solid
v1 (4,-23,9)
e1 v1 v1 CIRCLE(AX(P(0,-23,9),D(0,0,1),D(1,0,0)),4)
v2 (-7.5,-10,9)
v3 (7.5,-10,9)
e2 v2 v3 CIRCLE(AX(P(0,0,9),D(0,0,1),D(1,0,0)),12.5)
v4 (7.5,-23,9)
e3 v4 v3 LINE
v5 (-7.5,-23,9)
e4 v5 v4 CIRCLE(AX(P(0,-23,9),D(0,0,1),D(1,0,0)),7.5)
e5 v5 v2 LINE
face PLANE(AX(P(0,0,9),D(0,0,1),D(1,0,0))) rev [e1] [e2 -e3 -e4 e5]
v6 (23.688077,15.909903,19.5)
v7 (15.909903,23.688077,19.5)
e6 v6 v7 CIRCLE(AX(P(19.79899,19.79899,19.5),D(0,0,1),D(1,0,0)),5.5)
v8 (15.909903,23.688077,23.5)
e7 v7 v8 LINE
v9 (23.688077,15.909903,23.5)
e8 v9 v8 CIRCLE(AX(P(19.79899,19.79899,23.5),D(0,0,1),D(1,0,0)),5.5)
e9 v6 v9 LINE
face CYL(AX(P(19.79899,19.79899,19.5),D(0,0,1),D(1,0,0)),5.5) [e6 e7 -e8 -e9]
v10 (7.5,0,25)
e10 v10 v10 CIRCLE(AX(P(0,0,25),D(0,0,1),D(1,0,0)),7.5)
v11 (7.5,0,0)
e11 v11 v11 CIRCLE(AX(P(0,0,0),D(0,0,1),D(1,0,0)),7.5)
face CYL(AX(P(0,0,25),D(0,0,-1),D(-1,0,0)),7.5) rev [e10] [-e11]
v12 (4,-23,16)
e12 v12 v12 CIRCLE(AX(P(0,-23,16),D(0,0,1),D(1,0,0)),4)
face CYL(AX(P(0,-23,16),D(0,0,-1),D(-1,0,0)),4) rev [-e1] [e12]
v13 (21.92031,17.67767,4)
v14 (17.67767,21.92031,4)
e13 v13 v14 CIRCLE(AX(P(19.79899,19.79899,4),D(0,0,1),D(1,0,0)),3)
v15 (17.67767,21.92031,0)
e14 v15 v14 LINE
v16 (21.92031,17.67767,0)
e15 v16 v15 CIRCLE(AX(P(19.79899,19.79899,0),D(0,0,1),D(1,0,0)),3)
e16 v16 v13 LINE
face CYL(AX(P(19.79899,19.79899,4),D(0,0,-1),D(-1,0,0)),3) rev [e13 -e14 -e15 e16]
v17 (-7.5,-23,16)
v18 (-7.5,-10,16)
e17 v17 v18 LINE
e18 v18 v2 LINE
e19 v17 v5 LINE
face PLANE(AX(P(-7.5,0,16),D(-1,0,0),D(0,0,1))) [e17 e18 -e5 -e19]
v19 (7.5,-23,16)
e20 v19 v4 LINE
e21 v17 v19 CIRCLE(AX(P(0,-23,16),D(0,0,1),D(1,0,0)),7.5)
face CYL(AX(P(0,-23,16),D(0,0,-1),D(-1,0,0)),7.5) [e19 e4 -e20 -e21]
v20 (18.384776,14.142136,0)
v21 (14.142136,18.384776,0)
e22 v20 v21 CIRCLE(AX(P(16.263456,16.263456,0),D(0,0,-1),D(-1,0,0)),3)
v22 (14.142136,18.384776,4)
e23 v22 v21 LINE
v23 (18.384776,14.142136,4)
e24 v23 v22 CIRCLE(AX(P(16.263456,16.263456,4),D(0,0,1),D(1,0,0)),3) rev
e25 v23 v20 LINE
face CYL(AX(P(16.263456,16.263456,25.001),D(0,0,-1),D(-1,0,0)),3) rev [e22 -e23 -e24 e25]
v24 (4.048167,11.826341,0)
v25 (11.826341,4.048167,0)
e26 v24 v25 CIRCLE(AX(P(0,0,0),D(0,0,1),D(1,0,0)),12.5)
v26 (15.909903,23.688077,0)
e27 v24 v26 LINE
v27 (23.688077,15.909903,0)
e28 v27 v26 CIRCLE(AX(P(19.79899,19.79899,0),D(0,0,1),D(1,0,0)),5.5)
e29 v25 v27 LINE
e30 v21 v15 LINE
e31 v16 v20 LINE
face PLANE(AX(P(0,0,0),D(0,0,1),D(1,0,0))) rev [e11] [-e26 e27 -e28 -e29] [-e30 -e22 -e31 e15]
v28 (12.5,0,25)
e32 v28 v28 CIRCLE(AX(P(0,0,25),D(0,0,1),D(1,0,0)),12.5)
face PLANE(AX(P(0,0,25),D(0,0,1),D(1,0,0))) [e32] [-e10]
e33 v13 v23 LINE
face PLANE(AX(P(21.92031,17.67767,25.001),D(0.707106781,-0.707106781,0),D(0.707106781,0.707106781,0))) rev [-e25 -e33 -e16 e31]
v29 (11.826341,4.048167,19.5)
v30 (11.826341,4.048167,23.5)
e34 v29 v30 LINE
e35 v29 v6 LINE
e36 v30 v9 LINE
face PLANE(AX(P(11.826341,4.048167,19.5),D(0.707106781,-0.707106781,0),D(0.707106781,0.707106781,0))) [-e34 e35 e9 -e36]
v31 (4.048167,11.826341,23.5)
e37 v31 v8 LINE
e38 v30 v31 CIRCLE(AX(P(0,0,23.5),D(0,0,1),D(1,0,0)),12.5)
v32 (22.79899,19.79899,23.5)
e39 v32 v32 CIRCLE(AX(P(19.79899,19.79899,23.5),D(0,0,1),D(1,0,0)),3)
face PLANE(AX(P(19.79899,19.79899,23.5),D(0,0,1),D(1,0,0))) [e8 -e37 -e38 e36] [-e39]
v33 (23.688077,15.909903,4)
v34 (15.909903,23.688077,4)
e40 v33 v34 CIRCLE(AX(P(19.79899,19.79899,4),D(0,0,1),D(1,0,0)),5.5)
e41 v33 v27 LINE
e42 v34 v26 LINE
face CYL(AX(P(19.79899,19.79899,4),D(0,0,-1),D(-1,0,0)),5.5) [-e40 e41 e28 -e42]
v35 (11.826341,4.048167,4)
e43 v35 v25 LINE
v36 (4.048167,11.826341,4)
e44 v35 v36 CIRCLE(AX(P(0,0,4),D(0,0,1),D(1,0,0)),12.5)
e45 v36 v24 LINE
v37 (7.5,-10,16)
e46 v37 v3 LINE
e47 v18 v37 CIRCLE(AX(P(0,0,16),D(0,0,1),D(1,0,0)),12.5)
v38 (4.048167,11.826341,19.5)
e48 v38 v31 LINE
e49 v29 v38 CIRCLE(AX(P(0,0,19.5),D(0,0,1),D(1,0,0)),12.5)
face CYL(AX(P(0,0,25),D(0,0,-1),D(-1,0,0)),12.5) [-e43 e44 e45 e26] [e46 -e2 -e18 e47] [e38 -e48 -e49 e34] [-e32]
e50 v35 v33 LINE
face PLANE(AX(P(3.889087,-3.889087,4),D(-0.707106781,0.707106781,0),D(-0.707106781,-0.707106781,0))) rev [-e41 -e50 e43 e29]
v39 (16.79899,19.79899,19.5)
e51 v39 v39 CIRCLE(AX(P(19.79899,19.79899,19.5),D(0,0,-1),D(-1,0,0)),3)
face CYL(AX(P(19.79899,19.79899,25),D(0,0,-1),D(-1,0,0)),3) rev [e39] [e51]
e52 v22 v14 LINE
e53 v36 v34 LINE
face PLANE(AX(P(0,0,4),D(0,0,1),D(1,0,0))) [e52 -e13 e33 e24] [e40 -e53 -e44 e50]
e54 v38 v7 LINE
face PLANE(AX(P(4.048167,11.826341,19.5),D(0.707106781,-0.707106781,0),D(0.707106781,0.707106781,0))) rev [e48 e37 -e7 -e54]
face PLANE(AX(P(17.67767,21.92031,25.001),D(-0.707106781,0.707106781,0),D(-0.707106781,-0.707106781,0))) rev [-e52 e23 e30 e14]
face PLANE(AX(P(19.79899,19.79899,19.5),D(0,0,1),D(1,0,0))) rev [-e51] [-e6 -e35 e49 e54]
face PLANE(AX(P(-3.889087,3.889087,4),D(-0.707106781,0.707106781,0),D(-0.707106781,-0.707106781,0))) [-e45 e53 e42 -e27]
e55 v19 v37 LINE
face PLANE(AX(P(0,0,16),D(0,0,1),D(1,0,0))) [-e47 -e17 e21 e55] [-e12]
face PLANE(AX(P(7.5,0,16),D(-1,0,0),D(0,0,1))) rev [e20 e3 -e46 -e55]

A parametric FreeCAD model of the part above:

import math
import FreeCAD as App
import Part
import Sketcher
Q = App.Units.Quantity

doc = App.newDocument("Part")
body = doc.addObject("PartDesign::Body", "Body")

# Sketch on XY plane
sketch1 = body.newObject("Sketcher::SketchObject", "Sketch")
sketch1.AttachmentSupport = (doc.getObject("XY_Plane"), [""])
sketch1.MapMode = "FlatFace"
sketch1.addGeometry([
    Part.ArcOfCircle(Part.Circle(App.Vector(0, 0, 0), App.Vector(0, 0, 1), 12.5), math.radians(71.103881), math.radians(360)),  # 0
    Part.ArcOfCircle(Part.Circle(App.Vector(0, 0, 0), App.Vector(0, 0, 1), 12.5), math.radians(0), math.radians(18.896119)),  # 1
    Part.ArcOfCircle(Part.Circle(App.Vector(0, 0, 0), App.Vector(0, 0, 1), 12.5), math.radians(18.896119), math.radians(71.103881)),  # 2
    Part.ArcOfCircle(Part.Circle(App.Vector(0, 0, 0), App.Vector(0, 0, 1), 7.5), math.radians(92.166572), math.radians(357.833428)),  # 3
    Part.ArcOfCircle(Part.Circle(App.Vector(0, 0, 0), App.Vector(0, 0, 1), 7.5), math.radians(0), math.radians(92.166572)),  # 4
    Part.ArcOfCircle(Part.Circle(App.Vector(-0.000001, 0, 0), App.Vector(0, 0, 1), 7.500001), math.radians(-2.166572), math.radians(0)),  # 5
], False)
sketch1.addConstraint([
    Sketcher.Constraint("Tangent", 0, 2, 1, 1),
    Sketcher.Constraint("Tangent", 1, 2, 2, 1),
    Sketcher.Constraint("Tangent", 2, 2, 0, 1),
    Sketcher.Constraint("Tangent", 3, 1, 4, 2),
    Sketcher.Constraint("Tangent", 4, 1, 5, 2),
    Sketcher.Constraint("Tangent", 5, 1, 3, 2),
    Sketcher.Constraint("Coincident", 0, 3, -1, 1),
    Sketcher.Constraint("Coincident", 3, 3, -1, 1),
    Sketcher.Constraint("PointOnObject", 0, 2, -1),
    Sketcher.Constraint("PointOnObject", 4, 1, -1),
    Sketcher.Constraint("Radius", 0, Q("12.5 mm")),
    Sketcher.Constraint("Radius", 3, Q("7.5 mm")),
    Sketcher.Constraint("DistanceX", -1, 1, 1, 2, Q("11.826341 mm")),
    Sketcher.Constraint("DistanceY", -1, 1, 2, 2, Q("11.826341 mm")),
    Sketcher.Constraint("DistanceY", -1, 1, 3, 1, Q("7.494639 mm")),
    Sketcher.Constraint("DistanceX", -1, 1, 5, 1, Q("7.494639 mm")),
])
pad1 = body.newObject("PartDesign::Pad", "Pad")
pad1.Profile = sketch1
pad1.Length = 25

# Sketch on XY plane
sketch2 = body.newObject("Sketcher::SketchObject", "Sketch001")
sketch2.AttachmentSupport = (doc.getObject("XY_Plane"), [""])
sketch2.MapMode = "FlatFace"
sketch2.addGeometry([
    Part.LineSegment(App.Vector(15.909903, 23.688077, 0), App.Vector(4.048167, 11.826341, 0)),  # 0
    Part.ArcOfCircle(Part.Circle(App.Vector(0, 0, 0), App.Vector(0, 0, 1), 12.5), math.radians(18.896119), math.radians(71.103881)),  # 1
    Part.LineSegment(App.Vector(11.826341, 4.048167, 0), App.Vector(23.688077, 15.909903, 0)),  # 2
    Part.ArcOfCircle(Part.Circle(App.Vector(19.79899, 19.79899, 0), App.Vector(0, 0, 1), 5.5), math.radians(-45), math.radians(135)),  # 3
    Part.Circle(App.Vector(19.79899, 19.79899, 0), App.Vector(0, 0, 1), 3),  # 4
], False)
sketch2.addConstraint([
    Sketcher.Constraint("Coincident", 0, 2, 1, 2),
    Sketcher.Constraint("Coincident", 1, 1, 2, 1),
    Sketcher.Constraint("Tangent", 2, 2, 3, 1),
    Sketcher.Constraint("Tangent", 3, 2, 0, 1),
    Sketcher.Constraint("Coincident", 1, 3, -1, 1),
    Sketcher.Constraint("Coincident", 4, 3, 3, 3),
    Sketcher.Constraint("Parallel", 0, 2),
    Sketcher.Constraint("Equal", 0, 2),
    Sketcher.Constraint("Diameter", 4, Q("6 mm")),
    Sketcher.Constraint("Radius", 1, Q("12.5 mm")),
    Sketcher.Constraint("Radius", 3, Q("5.5 mm")),
    Sketcher.Constraint("Angle", 0, Q("-135 deg")),
    Sketcher.Constraint("DistanceX", -1, 1, 3, 3, Q("19.79899 mm")),
])
pad2 = body.newObject("PartDesign::Pad", "Pad001")
pad2.Profile = sketch2
pad2.Length = 4

# Sketch on XY plane
sketch3 = body.newObject("Sketcher::SketchObject", "Sketch002")
sketch3.AttachmentSupport = (doc.getObject("XY_Plane"), [""])
sketch3.MapMode = "FlatFace"
sketch3.AttachmentOffset = App.Placement(App.Vector(0, 0, 19.5), App.Rotation())
sketch3.addGeometry([
    Part.LineSegment(App.Vector(15.909903, 23.688077, 0), App.Vector(4.048167, 11.826341, 0)),
    Part.ArcOfCircle(Part.Circle(App.Vector(0, 0, 0), App.Vector(0, 0, 1), 12.5), math.radians(18.896119), math.radians(71.103881)),
    Part.LineSegment(App.Vector(11.826341, 4.048167, 0), App.Vector(23.688077, 15.909903, 0)),
    Part.ArcOfCircle(Part.Circle(App.Vector(19.79899, 19.79899, 0), App.Vector(0, 0, 1), 5.5), math.radians(-45), math.radians(135)),
], False)
sketch3.addConstraint([
    Sketcher.Constraint("Coincident", 0, 2, 1, 2),
    Sketcher.Constraint("Coincident", 1, 1, 2, 1),
    Sketcher.Constraint("Tangent", 2, 2, 3, 1),
    Sketcher.Constraint("Tangent", 3, 2, 0, 1),
    Sketcher.Constraint("Coincident", 1, 3, -1, 1),
    Sketcher.Constraint("Parallel", 0, 2),
    Sketcher.Constraint("Equal", 0, 2),
    Sketcher.Constraint("Radius", 1, Q("12.5 mm")),
    Sketcher.Constraint("Radius", 3, Q("5.5 mm")),
    Sketcher.Constraint("Angle", 0, Q("-135 deg")),
    Sketcher.Constraint("DistanceX", -1, 1, 3, 3, Q("19.79899 mm")),
])
pad3 = body.newObject("PartDesign::Pad", "Pad002")
pad3.Profile = sketch3
pad3.Length = 4

# Sketch on XY plane
sketch4 = body.newObject("Sketcher::SketchObject", "Sketch003")
sketch4.AttachmentSupport = (doc.getObject("XY_Plane"), [""])
sketch4.MapMode = "FlatFace"
sketch4.AttachmentOffset = App.Placement(App.Vector(0, 0, 19.5), App.Rotation())
sketch4.addGeometry(Part.Circle(App.Vector(19.79899, 19.79899, 0), App.Vector(0, 0, 1), 3), False)
sketch4.addConstraint([
    Sketcher.Constraint("Diameter", 0, Q("6 mm")),
    Sketcher.Constraint("DistanceX", -1, 1, 0, 3, Q("19.79899 mm")),
    Sketcher.Constraint("DistanceY", -1, 1, 0, 3, Q("19.79899 mm")),
])
pocket1 = body.newObject("PartDesign::Pocket", "Pocket")
pocket1.Profile = sketch4
pocket1.Type = "ThroughAll"
pocket1.Reversed = True

# Sketch on XY plane
sketch5 = body.newObject("Sketcher::SketchObject", "Sketch004")
sketch5.AttachmentSupport = (doc.getObject("XY_Plane"), [""])
sketch5.MapMode = "FlatFace"
sketch5.addGeometry([
    Part.LineSegment(App.Vector(14.142136, 18.384776, 0), App.Vector(17.67767, 21.92031, 0)),
    Part.ArcOfCircle(Part.Circle(App.Vector(19.79899, 19.79899, 0), App.Vector(0, 0, 1), 3), math.radians(-45), math.radians(135)),
    Part.LineSegment(App.Vector(21.92031, 17.67767, 0), App.Vector(18.384776, 14.142136, 0)),
    Part.ArcOfCircle(Part.Circle(App.Vector(16.263456, 16.263456, 0), App.Vector(0, 0, 1), 3), math.radians(135), math.radians(315)),
], False)
sketch5.addConstraint([
    Sketcher.Constraint("Tangent", 0, 2, 1, 2),
    Sketcher.Constraint("Tangent", 1, 1, 2, 1),
    Sketcher.Constraint("Tangent", 2, 2, 3, 2),
    Sketcher.Constraint("Tangent", 3, 1, 0, 1),
    Sketcher.Constraint("Equal", 1, 3),
    Sketcher.Constraint("Radius", 1, Q("3 mm")),
    Sketcher.Constraint("Angle", 0, Q("45 deg")),
    Sketcher.Constraint("Distance", 0, Q("5 mm")),
    Sketcher.Constraint("DistanceX", -1, 1, 1, 3, Q("19.79899 mm")),
    Sketcher.Constraint("DistanceY", -1, 1, 1, 3, Q("19.79899 mm")),
])
pocket2 = body.newObject("PartDesign::Pocket", "Pocket001")
pocket2.Profile = sketch5
pocket2.Length = 4
pocket2.Reversed = True

# Sketch on XY plane
sketch6 = body.newObject("Sketcher::SketchObject", "Sketch005")
sketch6.AttachmentSupport = (doc.getObject("XY_Plane"), [""])
sketch6.MapMode = "FlatFace"
sketch6.AttachmentOffset = App.Placement(App.Vector(0, 0, 12.5), App.Rotation())
sketch6.addGeometry([
    Part.ArcOfCircle(Part.Circle(App.Vector(0, -23, 0), App.Vector(0, 0, 1), 7.5), math.radians(180), math.radians(360)),  # 0
    Part.LineSegment(App.Vector(7.5, -23, 0), App.Vector(7.5, -10, 0)),  # 1
    Part.LineSegment(App.Vector(7.5, -10, 0), App.Vector(-7.5, -10, 0)),  # 2
    Part.LineSegment(App.Vector(-7.5, -10, 0), App.Vector(-7.5, -23, 0)),  # 3
    Part.Circle(App.Vector(0, -23, 0), App.Vector(0, 0, 1), 4),  # 4
], False)
sketch6.addConstraint([
    Sketcher.Constraint("Tangent", 0, 2, 1, 1),
    Sketcher.Constraint("Coincident", 1, 2, 2, 1),
    Sketcher.Constraint("Coincident", 2, 2, 3, 1),
    Sketcher.Constraint("Tangent", 3, 2, 0, 1),
    Sketcher.Constraint("Vertical", 1),
    Sketcher.Constraint("Horizontal", 2),
    Sketcher.Constraint("Vertical", 3),
    Sketcher.Constraint("Coincident", 4, 3, 0, 3),
    Sketcher.Constraint("PointOnObject", 0, 3, -2),
    Sketcher.Constraint("Diameter", 4, Q("8 mm")),
    Sketcher.Constraint("Radius", 0, Q("7.5 mm")),
    Sketcher.Constraint("DistanceY", 1, 1, 1, 2, Q("13 mm")),
    Sketcher.Constraint("DistanceY", 0, 3, -1, 1, Q("23 mm")),
])
pad4 = body.newObject("PartDesign::Pad", "Pad003")
pad4.Profile = sketch6
pad4.Length = 7
pad4.Midplane = True

doc.recompute()
